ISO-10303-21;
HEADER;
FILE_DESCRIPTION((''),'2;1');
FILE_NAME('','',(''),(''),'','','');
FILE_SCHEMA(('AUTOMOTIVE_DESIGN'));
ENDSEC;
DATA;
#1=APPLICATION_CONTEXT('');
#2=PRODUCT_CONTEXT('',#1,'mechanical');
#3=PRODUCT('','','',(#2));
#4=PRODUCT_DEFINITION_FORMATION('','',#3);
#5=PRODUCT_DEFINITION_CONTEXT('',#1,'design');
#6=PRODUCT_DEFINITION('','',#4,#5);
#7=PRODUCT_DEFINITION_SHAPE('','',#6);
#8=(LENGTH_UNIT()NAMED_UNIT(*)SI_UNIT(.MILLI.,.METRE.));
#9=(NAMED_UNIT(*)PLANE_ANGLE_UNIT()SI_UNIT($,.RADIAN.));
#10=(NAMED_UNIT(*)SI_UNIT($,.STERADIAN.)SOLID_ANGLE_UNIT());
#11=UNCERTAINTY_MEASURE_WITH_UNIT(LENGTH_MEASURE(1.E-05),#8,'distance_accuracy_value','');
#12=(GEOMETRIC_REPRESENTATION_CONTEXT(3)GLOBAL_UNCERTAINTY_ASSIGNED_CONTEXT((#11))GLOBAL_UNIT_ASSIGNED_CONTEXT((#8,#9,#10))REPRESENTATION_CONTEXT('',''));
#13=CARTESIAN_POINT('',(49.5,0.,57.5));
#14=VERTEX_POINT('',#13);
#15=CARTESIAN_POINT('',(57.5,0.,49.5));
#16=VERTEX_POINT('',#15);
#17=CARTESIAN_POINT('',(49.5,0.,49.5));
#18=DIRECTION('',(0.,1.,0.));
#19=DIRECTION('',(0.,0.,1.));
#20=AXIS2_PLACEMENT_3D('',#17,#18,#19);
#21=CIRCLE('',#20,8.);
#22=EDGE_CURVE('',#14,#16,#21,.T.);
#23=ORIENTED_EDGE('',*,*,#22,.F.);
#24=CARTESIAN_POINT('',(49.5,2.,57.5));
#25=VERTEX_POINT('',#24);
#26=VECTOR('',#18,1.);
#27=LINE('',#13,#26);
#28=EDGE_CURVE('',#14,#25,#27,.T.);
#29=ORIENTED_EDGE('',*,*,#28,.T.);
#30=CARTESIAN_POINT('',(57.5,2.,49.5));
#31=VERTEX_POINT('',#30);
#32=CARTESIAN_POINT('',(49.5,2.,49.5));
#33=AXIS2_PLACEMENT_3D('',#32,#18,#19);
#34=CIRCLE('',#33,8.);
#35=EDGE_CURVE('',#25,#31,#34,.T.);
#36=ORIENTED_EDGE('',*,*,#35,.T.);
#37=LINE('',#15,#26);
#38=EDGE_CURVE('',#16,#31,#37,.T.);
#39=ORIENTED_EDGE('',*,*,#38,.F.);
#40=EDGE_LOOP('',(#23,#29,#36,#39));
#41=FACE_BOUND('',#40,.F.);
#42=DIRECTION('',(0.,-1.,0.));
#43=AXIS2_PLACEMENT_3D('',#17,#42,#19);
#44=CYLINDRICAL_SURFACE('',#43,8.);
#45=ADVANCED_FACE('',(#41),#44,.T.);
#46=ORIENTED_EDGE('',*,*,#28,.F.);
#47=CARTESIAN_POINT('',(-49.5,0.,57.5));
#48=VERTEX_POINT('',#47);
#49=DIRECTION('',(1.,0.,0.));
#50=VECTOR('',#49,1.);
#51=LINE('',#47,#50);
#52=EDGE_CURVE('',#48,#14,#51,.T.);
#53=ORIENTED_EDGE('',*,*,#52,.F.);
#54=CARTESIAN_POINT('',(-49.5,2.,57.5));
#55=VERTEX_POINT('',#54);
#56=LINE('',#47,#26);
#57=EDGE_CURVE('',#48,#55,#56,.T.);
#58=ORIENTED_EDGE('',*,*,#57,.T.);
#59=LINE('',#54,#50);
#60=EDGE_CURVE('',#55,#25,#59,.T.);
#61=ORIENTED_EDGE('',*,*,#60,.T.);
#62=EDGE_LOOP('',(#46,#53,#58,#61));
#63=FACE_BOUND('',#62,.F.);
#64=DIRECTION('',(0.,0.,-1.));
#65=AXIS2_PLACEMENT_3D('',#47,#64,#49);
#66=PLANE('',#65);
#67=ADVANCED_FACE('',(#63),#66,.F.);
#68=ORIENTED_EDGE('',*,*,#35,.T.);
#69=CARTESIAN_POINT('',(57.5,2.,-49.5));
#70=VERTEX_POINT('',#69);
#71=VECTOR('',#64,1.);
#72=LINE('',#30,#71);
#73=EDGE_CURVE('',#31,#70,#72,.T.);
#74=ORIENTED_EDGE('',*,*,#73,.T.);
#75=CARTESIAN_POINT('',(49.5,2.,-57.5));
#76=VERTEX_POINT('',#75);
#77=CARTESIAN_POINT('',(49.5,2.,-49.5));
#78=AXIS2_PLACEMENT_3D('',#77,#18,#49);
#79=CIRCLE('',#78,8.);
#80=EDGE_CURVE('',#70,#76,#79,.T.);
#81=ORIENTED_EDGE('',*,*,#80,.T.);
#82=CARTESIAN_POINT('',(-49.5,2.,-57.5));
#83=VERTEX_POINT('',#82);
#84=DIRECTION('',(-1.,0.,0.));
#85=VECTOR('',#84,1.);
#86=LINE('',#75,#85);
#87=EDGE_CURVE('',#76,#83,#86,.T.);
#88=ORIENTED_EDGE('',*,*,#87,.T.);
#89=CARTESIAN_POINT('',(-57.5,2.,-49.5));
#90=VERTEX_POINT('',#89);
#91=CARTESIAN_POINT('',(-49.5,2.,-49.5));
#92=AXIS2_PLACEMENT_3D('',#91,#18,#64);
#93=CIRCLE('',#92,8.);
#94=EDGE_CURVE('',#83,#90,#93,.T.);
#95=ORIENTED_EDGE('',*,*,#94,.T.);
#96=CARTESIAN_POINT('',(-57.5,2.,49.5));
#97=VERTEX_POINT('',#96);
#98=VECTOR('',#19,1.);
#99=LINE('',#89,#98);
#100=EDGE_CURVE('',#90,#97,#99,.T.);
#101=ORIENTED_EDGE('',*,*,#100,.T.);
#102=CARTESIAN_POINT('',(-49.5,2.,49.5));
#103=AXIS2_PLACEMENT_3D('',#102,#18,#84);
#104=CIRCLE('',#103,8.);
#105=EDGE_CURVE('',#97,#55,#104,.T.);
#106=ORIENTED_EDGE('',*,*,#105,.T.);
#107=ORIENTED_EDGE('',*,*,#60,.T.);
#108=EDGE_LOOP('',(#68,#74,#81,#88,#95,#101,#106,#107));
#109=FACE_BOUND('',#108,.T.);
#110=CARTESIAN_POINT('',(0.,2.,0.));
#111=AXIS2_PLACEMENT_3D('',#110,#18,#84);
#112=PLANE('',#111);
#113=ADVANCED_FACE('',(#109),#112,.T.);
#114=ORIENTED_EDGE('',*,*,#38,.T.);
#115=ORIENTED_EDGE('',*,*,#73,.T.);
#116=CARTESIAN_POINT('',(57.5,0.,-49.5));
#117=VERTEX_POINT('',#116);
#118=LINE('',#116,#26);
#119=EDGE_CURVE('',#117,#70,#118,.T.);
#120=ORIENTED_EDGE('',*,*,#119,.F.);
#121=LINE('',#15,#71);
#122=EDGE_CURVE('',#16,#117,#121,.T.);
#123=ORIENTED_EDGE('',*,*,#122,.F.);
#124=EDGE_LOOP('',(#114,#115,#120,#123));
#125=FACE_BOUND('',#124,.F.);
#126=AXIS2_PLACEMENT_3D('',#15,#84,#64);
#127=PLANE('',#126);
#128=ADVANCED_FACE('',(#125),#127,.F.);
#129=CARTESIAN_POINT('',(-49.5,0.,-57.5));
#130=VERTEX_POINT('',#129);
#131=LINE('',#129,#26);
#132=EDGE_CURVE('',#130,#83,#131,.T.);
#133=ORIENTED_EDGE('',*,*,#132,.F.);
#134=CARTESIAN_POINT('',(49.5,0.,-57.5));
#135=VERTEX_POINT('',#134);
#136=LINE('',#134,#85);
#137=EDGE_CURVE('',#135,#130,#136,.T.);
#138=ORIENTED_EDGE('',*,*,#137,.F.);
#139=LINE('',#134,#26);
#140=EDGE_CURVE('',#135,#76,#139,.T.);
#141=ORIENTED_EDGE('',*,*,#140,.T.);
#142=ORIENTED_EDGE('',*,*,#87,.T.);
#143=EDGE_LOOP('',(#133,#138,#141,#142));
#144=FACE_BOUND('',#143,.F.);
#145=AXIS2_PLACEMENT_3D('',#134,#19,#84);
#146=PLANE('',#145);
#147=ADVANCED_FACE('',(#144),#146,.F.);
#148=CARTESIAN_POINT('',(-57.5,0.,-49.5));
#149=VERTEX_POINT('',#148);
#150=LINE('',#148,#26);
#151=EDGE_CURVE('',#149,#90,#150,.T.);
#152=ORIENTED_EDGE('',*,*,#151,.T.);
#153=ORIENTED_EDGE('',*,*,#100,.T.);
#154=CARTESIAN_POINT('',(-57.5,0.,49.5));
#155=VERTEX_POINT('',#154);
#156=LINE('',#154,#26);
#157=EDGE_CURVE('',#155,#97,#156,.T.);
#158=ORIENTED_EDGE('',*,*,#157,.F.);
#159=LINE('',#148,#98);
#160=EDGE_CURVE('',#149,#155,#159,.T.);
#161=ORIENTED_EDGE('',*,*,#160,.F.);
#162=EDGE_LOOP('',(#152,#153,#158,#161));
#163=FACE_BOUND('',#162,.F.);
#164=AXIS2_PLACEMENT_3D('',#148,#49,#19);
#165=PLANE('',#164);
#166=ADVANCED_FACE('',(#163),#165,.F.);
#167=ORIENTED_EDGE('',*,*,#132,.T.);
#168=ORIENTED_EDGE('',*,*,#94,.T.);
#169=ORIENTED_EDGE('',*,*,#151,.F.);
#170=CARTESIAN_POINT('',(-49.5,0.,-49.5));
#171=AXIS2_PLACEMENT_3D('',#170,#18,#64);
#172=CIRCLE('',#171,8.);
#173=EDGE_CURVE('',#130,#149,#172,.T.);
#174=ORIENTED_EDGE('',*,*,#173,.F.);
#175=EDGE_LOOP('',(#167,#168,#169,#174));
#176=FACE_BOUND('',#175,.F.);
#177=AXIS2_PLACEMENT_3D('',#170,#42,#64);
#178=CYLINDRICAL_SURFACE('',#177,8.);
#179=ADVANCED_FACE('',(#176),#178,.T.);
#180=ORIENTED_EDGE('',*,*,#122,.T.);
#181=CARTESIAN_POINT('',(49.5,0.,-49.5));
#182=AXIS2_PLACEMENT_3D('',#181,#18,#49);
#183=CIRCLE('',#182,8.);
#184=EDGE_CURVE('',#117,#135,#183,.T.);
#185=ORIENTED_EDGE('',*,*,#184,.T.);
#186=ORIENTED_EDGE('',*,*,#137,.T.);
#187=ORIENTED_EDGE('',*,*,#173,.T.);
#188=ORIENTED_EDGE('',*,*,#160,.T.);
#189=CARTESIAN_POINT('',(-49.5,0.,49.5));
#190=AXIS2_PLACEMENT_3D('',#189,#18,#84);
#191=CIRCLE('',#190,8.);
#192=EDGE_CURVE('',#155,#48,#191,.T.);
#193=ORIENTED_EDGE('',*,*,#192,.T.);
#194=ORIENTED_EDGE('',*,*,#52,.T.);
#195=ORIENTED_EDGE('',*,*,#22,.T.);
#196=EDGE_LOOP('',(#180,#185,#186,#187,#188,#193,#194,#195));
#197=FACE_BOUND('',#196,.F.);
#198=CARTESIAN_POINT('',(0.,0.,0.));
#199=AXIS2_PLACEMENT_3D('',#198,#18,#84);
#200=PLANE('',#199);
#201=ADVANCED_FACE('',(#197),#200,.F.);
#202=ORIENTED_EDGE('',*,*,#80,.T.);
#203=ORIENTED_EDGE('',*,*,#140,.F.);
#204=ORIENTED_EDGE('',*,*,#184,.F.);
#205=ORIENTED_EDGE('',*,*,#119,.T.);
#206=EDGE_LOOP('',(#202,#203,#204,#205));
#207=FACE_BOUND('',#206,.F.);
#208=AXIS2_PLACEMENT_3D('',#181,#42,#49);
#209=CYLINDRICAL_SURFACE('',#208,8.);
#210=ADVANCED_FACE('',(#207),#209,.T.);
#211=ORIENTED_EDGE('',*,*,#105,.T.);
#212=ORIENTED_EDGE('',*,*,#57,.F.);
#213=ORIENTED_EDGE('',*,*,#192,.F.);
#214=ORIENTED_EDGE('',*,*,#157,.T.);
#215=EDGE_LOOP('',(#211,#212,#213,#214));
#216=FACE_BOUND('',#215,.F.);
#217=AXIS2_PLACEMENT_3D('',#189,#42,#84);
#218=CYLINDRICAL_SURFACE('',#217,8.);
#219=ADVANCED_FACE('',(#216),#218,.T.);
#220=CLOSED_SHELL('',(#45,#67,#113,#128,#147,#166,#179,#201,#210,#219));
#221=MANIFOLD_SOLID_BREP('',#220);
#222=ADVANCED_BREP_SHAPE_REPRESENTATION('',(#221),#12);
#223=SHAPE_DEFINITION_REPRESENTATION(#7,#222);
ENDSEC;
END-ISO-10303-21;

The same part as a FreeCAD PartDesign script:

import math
import FreeCAD as App
import Part
import Sketcher

V = App.Vector
Q = App.Units.Quantity

doc = App.newDocument("Part")
body = doc.addObject("PartDesign::Body", "Body")

# Sketch on XZ plane
sketch1 = doc.addObject("Sketcher::SketchObject", "Sketch")
body.addObject(sketch1)
sketch1.AttachmentSupport = (doc.XZ_Plane, [""])
sketch1.MapMode = "FlatFace"
sketch1.addGeometry(Part.ArcOfCircle(Part.Circle(V(49.5, -49.5, 0), V(0, 0, 1), 8), math.radians(-90), math.radians(0)), False)
sketch1.addGeometry(Part.LineSegment(V(49.5, -57.5, 0), V(-49.5, -57.5, 0)), False)
sketch1.addGeometry(Part.ArcOfCircle(Part.Circle(V(-49.5, -49.5, 0), V(0, 0, 1), 8), math.radians(180), math.radians(270)), False)
sketch1.addGeometry(Part.LineSegment(V(-57.5, -49.5, 0), V(-57.5, 49.5, 0)), False)
sketch1.addGeometry(Part.ArcOfCircle(Part.Circle(V(-49.5, 49.5, 0), V(0, 0, 1), 8), math.radians(90), math.radians(180)), False)
sketch1.addGeometry(Part.LineSegment(V(-49.5, 57.5, 0), V(49.5, 57.5, 0)), False)
sketch1.addGeometry(Part.ArcOfCircle(Part.Circle(V(49.5, 49.5, 0), V(0, 0, 1), 8), math.radians(0), math.radians(90)), False)
sketch1.addGeometry(Part.LineSegment(V(57.5, 49.5, 0), V(57.5, -49.5, 0)), False)
sketch1.addConstraint(Sketcher.Constraint("Tangent", 0, 1, 1, 1))
sketch1.addConstraint(Sketcher.Constraint("Tangent", 1, 2, 2, 2))
sketch1.addConstraint(Sketcher.Constraint("Tangent", 2, 1, 3, 1))
sketch1.addConstraint(Sketcher.Constraint("Tangent", 3, 2, 4, 2))
sketch1.addConstraint(Sketcher.Constraint("Tangent", 4, 1, 5, 1))
sketch1.addConstraint(Sketcher.Constraint("Tangent", 5, 2, 6, 2))
sketch1.addConstraint(Sketcher.Constraint("Tangent", 6, 1, 7, 1))
sketch1.addConstraint(Sketcher.Constraint("Tangent", 7, 2, 0, 2))
sketch1.addConstraint(Sketcher.Constraint("Horizontal", 1))
sketch1.addConstraint(Sketcher.Constraint("Vertical", 3))
sketch1.addConstraint(Sketcher.Constraint("Horizontal", 5))
sketch1.addConstraint(Sketcher.Constraint("Vertical", 7))
sketch1.addConstraint(Sketcher.Constraint("Equal", 0, 2))
sketch1.addConstraint(Sketcher.Constraint("Equal", 2, 4))
sketch1.addConstraint(Sketcher.Constraint("Equal", 4, 6))
sketch1.addConstraint(Sketcher.Constraint("Symmetric", 0, 3, 4, 3, -1, 1))
sketch1.addConstraint(Sketcher.Constraint("Equal", 5, 3))
sketch1.addConstraint(Sketcher.Constraint("Radius", 0, Q("8 mm")))
sketch1.addConstraint(Sketcher.Constraint("DistanceX", 1, 2, 1, 1, Q("99 mm")))
pad1 = doc.addObject("PartDesign::Pad", "Pad")
body.addObject(pad1)
pad1.Profile = sketch1
pad1.Length = 2
pad1.Reversed = True

doc.recompute()
